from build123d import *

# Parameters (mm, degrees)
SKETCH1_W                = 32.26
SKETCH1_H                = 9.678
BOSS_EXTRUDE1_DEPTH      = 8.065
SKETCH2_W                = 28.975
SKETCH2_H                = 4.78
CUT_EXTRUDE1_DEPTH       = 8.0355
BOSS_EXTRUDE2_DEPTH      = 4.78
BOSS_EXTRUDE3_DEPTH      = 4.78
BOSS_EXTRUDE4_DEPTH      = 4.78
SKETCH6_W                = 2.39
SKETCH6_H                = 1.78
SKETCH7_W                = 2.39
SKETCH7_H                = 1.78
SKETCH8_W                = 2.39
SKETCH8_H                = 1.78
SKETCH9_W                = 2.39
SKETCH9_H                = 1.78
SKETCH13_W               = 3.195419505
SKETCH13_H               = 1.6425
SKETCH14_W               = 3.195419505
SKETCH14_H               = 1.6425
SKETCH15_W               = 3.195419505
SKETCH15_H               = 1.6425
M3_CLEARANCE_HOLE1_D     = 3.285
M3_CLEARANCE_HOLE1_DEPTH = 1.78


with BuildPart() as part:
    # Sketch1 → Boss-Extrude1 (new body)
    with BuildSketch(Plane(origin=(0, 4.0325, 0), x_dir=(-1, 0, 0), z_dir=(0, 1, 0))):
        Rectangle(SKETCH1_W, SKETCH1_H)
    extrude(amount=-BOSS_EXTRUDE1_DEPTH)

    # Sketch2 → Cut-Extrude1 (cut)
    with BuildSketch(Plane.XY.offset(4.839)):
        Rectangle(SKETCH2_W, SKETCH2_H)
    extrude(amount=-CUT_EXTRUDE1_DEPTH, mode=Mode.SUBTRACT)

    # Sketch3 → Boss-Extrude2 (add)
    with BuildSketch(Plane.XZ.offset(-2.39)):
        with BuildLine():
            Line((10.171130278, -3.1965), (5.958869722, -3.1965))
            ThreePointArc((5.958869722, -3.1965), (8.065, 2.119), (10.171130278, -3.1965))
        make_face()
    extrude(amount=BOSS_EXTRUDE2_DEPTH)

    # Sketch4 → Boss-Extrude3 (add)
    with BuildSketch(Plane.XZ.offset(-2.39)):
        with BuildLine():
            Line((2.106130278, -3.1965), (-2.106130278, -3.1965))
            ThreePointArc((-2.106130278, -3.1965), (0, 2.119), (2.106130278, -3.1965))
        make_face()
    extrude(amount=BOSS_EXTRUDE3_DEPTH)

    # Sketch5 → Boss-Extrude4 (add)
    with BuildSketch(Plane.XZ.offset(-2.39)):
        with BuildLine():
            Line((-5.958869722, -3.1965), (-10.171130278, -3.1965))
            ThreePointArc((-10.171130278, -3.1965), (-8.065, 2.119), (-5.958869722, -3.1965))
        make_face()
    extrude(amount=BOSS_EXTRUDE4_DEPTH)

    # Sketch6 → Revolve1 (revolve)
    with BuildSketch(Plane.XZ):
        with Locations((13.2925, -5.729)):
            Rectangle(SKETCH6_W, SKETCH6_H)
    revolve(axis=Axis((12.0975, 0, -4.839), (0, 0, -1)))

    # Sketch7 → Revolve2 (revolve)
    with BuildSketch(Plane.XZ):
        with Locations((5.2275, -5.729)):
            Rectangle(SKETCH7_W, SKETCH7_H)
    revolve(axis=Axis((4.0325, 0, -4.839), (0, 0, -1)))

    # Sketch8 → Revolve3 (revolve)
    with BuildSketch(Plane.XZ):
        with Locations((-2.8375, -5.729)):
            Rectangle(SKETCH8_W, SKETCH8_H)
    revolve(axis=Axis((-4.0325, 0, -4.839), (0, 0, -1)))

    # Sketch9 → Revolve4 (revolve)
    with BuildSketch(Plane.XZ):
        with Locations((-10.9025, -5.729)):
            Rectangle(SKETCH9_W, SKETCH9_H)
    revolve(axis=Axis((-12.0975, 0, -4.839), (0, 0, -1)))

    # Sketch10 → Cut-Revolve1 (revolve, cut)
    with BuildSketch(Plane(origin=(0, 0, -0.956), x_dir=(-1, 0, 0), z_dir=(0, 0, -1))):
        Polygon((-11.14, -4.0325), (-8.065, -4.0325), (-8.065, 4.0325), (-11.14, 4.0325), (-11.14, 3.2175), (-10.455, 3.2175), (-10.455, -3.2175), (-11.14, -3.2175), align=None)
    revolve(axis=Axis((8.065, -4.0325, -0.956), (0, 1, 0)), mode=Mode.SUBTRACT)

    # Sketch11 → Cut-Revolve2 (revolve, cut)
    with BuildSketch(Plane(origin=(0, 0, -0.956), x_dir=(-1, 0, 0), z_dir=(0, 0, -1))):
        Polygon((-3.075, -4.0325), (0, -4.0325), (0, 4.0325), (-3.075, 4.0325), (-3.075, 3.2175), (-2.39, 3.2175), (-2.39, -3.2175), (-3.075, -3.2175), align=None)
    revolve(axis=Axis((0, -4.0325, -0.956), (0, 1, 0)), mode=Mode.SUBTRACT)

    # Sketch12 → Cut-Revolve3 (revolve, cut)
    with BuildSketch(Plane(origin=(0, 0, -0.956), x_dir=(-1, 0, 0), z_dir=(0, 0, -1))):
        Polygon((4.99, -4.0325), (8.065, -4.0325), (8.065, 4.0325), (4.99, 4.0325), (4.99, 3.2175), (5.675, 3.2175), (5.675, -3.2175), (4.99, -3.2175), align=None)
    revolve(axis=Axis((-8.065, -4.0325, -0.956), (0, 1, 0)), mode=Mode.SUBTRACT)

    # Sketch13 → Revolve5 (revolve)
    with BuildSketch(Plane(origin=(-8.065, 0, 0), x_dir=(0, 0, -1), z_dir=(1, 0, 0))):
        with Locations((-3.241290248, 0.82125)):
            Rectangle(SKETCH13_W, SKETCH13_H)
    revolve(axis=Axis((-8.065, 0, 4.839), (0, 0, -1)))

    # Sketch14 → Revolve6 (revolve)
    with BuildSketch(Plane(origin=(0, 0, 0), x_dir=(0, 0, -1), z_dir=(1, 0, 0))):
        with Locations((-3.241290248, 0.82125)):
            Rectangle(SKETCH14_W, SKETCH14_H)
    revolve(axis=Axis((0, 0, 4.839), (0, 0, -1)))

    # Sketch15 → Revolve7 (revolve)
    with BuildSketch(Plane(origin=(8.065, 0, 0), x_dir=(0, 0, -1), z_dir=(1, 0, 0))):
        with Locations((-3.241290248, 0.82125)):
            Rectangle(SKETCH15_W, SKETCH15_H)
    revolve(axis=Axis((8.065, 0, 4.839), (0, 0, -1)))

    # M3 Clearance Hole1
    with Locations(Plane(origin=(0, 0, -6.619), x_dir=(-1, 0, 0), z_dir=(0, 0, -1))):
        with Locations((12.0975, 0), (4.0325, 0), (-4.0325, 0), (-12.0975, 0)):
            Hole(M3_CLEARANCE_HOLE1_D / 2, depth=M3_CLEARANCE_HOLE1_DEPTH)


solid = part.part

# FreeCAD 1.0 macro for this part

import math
import FreeCAD as App
import Part
import Sketcher

V = App.Vector
Q = App.Units.Quantity


def add_polygon(sketch, points):
    """Adds a closed chain of lines whose ends are joined by coincident constraints."""
    first, n = sketch.GeometryCount, len(points)
    for a, b in zip(points, points[1:] + points[:1]):
        sketch.addGeometry(Part.LineSegment(App.Vector(*a, 0), App.Vector(*b, 0)), False)
    for i in range(n):
        sketch.addConstraint(Sketcher.Constraint("Coincident", first + i, 2, first + (i + 1) % n, 1))

doc = App.newDocument("Part")
body = doc.addObject("PartDesign::Body", "Body")

# Sketch on XZ plane
sketch1 = body.newObject("Sketcher::SketchObject", "Sketch")
sketch1.AttachmentSupport = (doc.getObject("XZ_Plane"), [""])
sketch1.MapMode = "FlatFace"
sketch1.AttachmentOffset = App.Placement(V(0, 0, -4.0325), App.Rotation())
add_polygon(sketch1, [(16, 5), (16, -5), (-16, -5), (-16, 5)])  # lines 0-3
sketch1.addConstraint(Sketcher.Constraint("Vertical", 0))
sketch1.addConstraint(Sketcher.Constraint("Horizontal", 1))
sketch1.addConstraint(Sketcher.Constraint("Vertical", 2))
sketch1.addConstraint(Sketcher.Constraint("Horizontal", 3))
sketch1.addConstraint(Sketcher.Constraint("Symmetric", 0, 2, 2, 2, -1, 1))
sketch1.addConstraint(Sketcher.Constraint("DistanceX", 1, 2, 1, 1, Q("32.26 mm")))
sketch1.addConstraint(Sketcher.Constraint("DistanceY", 0, 2, 0, 1, Q("9.678 mm")))
pad1 = body.newObject("PartDesign::Pad", "Pad")
pad1.Profile = sketch1
pad1.Length = 8.065

# Sketch on XY plane
sketch2 = body.newObject("Sketcher::SketchObject", "Sketch001")
sketch2.AttachmentSupport = (doc.getObject("XY_Plane"), [""])
sketch2.MapMode = "FlatFace"
sketch2.AttachmentOffset = App.Placement(V(0, 0, 4.839), App.Rotation())
add_polygon(sketch2, [(-14.5, 2.4), (-14.5, -2.4), (14.5, -2.4), (14.5, 2.4)])  # lines 0-3
sketch2.addConstraint(Sketcher.Constraint("Vertical", 0))
sketch2.addConstraint(Sketcher.Constraint("Horizontal", 1))
sketch2.addConstraint(Sketcher.Constraint("Vertical", 2))
sketch2.addConstraint(Sketcher.Constraint("Horizontal", 3))
sketch2.addConstraint(Sketcher.Constraint("Symmetric", 0, 2, 2, 2, -1, 1))
sketch2.addConstraint(Sketcher.Constraint("DistanceY", 0, 2, 0, 1, Q("4.78 mm")))
sketch2.addConstraint(Sketcher.Constraint("DistanceX", 1, 1, 1, 2, Q("28.975 mm")))
pocket1 = body.newObject("PartDesign::Pocket", "Pocket")
pocket1.Profile = sketch2
pocket1.Length = 8.0355

# Sketch on XZ plane
sketch3 = body.newObject("Sketcher::SketchObject", "Sketch002")
sketch3.AttachmentSupport = (doc.getObject("XZ_Plane"), [""])
sketch3.MapMode = "FlatFace"
sketch3.AttachmentOffset = App.Placement(V(0, 0, -2.39), App.Rotation())
sketch3.addGeometry(Part.LineSegment(V(6, -3.2, 0), V(10.2, -3.2, 0)), False)
sketch3.addGeometry(Part.ArcOfCircle(Part.Circle(V(8.1, -1, 0), V(0, 0, 1), 3.1), math.radians(-47), math.radians(227)), False)
sketch3.addConstraint(Sketcher.Constraint("Coincident", 0, 1, 1, 2))
sketch3.addConstraint(Sketcher.Constraint("Coincident", 1, 1, 0, 2))
sketch3.addConstraint(Sketcher.Constraint("Horizontal", 0))
sketch3.addConstraint(Sketcher.Constraint("Radius", 1, Q("3.075 mm")))
sketch3.addConstraint(Sketcher.Constraint("DistanceX", -1, 1, 1, 3, Q("8.065 mm")))
sketch3.addConstraint(Sketcher.Constraint("DistanceY", 1, 3, -1, 1, Q("0.956 mm")))
sketch3.addConstraint(Sketcher.Constraint("DistanceX", 0, 1, 0, 2, Q("4.212261 mm")))
pad2 = body.newObject("PartDesign::Pad", "Pad001")
pad2.Profile = sketch3
pad2.Length = 4.78

# Sketch on XZ plane
sketch4 = body.newObject("Sketcher::SketchObject", "Sketch003")
sketch4.AttachmentSupport = (doc.getObject("XZ_Plane"), [""])
sketch4.MapMode = "FlatFace"
sketch4.AttachmentOffset = App.Placement(V(0, 0, -2.39), App.Rotation())
sketch4.addGeometry(Part.LineSegment(V(-2.1, -3.2, 0), V(2.1, -3.2, 0)), False)
sketch4.addGeometry(Part.ArcOfCircle(Part.Circle(V(0, -1, 0), V(0, 0, 1), 3.1), math.radians(-47), math.radians(227)), False)
sketch4.addConstraint(Sketcher.Constraint("Coincident", 0, 1, 1, 2))
sketch4.addConstraint(Sketcher.Constraint("Coincident", 1, 1, 0, 2))
sketch4.addConstraint(Sketcher.Constraint("Horizontal", 0))
sketch4.addConstraint(Sketcher.Constraint("PointOnObject", 1, 3, -2))
sketch4.addConstraint(Sketcher.Constraint("Radius", 1, Q("3.075 mm")))
sketch4.addConstraint(Sketcher.Constraint("DistanceY", 1, 3, -1, 1, Q("0.956 mm")))
sketch4.addConstraint(Sketcher.Constraint("DistanceX", 0, 1, 0, 2, Q("4.212261 mm")))
pad3 = body.newObject("PartDesign::Pad", "Pad002")
pad3.Profile = sketch4
pad3.Length = 4.78

# Sketch on XZ plane
sketch5 = body.newObject("Sketcher::SketchObject", "Sketch004")
sketch5.AttachmentSupport = (doc.getObject("XZ_Plane"), [""])
sketch5.MapMode = "FlatFace"
sketch5.AttachmentOffset = App.Placement(V(0, 0, -2.39), App.Rotation())
sketch5.addGeometry(Part.LineSegment(V(-10.2, -3.2, 0), V(-6, -3.2, 0)), False)
sketch5.addGeometry(Part.ArcOfCircle(Part.Circle(V(-8.1, -1, 0), V(0, 0, 1), 3.1), math.radians(-47), math.radians(227)), False)
sketch5.addConstraint(Sketcher.Constraint("Coincident", 0, 1, 1, 2))
sketch5.addConstraint(Sketcher.Constraint("Coincident", 1, 1, 0, 2))
sketch5.addConstraint(Sketcher.Constraint("Horizontal", 0))
sketch5.addConstraint(Sketcher.Constraint("Radius", 1, Q("3.075 mm")))
sketch5.addConstraint(Sketcher.Constraint("DistanceX", 1, 3, -1, 1, Q("8.065 mm")))
sketch5.addConstraint(Sketcher.Constraint("DistanceY", 1, 3, -1, 1, Q("0.956 mm")))
sketch5.addConstraint(Sketcher.Constraint("DistanceX", 0, 1, 0, 2, Q("4.212261 mm")))
pad4 = body.newObject("PartDesign::Pad", "Pad003")
pad4.Profile = sketch5
pad4.Length = 4.78

# Sketch on XZ plane
sketch6 = body.newObject("Sketcher::SketchObject", "Sketch005")
sketch6.AttachmentSupport = (doc.getObject("XZ_Plane"), [""])
sketch6.MapMode = "FlatFace"
add_polygon(sketch6, [(12.1, -4.8), (12.1, -6.6), (14.5, -6.6), (14.5, -4.8)])  # lines 0-3
sketch6.addGeometry(Part.LineSegment(V(12.1, -4.8, 0), V(12.1, -6.6, 0)), True)  # axis
sketch6.addConstraint(Sketcher.Constraint("Vertical", 0))
sketch6.addConstraint(Sketcher.Constraint("Horizontal", 1))
sketch6.addConstraint(Sketcher.Constraint("Vertical", 2))
sketch6.addConstraint(Sketcher.Constraint("Horizontal", 3))
sketch6.addConstraint(Sketcher.Constraint("Vertical", 4))
sketch6.addConstraint(Sketcher.Constraint("Coincident", 4, 1, 3, 2))
sketch6.addConstraint(Sketcher.Constraint("Horizontal", 1, 2, 4, 2))
sketch6.addConstraint(Sketcher.Constraint("DistanceX", 1, 1, 1, 2, Q("2.39 mm")))
sketch6.addConstraint(Sketcher.Constraint("DistanceY", 0, 2, 0, 1, Q("1.78 mm")))
sketch6.addConstraint(Sketcher.Constraint("DistanceY", 0, 2, -1, 1, Q("6.619 mm")))
sketch6.addConstraint(Sketcher.Constraint("DistanceX", -1, 1, 0, 2, Q("12.0975 mm")))
revolution = body.newObject("PartDesign::Revolution", "Revolution")
revolution.Profile = sketch6
revolution.ReferenceAxis = (sketch6, ["Axis0"])
revolution.Angle = 360

# Sketch on XZ plane
sketch7 = body.newObject("Sketcher::SketchObject", "Sketch006")
sketch7.AttachmentSupport = (doc.getObject("XZ_Plane"), [""])
sketch7.MapMode = "FlatFace"
add_polygon(sketch7, [(4, -4.8), (4, -6.6), (6.4, -6.6), (6.4, -4.8)])  # lines 0-3
sketch7.addGeometry(Part.LineSegment(V(4, -4.8, 0), V(4, -6.6, 0)), True)  # axis
sketch7.addConstraint(Sketcher.Constraint("Vertical", 0))
sketch7.addConstraint(Sketcher.Constraint("Horizontal", 1))
sketch7.addConstraint(Sketcher.Constraint("Vertical", 2))
sketch7.addConstraint(Sketcher.Constraint("Horizontal", 3))
sketch7.addConstraint(Sketcher.Constraint("Vertical", 4))
sketch7.addConstraint(Sketcher.Constraint("Coincident", 4, 1, 3, 2))
sketch7.addConstraint(Sketcher.Constraint("Horizontal", 1, 2, 4, 2))
sketch7.addConstraint(Sketcher.Constraint("DistanceX", 1, 1, 1, 2, Q("2.39 mm")))
sketch7.addConstraint(Sketcher.Constraint("DistanceY", 0, 2, 0, 1, Q("1.78 mm")))
sketch7.addConstraint(Sketcher.Constraint("DistanceY", 0, 2, -1, 1, Q("6.619 mm")))
sketch7.addConstraint(Sketcher.Constraint("DistanceX", -1, 1, 0, 2, Q("4.0325 mm")))
revolution2 = body.newObject("PartDesign::Revolution", "Revolution001")
revolution2.Profile = sketch7
revolution2.ReferenceAxis = (sketch7, ["Axis0"])
revolution2.Angle = 360

# Sketch on XZ plane
sketch8 = body.newObject("Sketcher::SketchObject", "Sketch007")
sketch8.AttachmentSupport = (doc.getObject("XZ_Plane"), [""])
sketch8.MapMode = "FlatFace"
add_polygon(sketch8, [(-4, -4.8), (-4, -6.6), (-1.6, -6.6), (-1.6, -4.8)])  # lines 0-3
sketch8.addGeometry(Part.LineSegment(V(-4, -4.8, 0), V(-4, -6.6, 0)), True)  # axis
sketch8.addConstraint(Sketcher.Constraint("Vertical", 0))
sketch8.addConstraint(Sketcher.Constraint("Horizontal", 1))
sketch8.addConstraint(Sketcher.Constraint("Vertical", 2))
sketch8.addConstraint(Sketcher.Constraint("Horizontal", 3))
sketch8.addConstraint(Sketcher.Constraint("Vertical", 4))
sketch8.addConstraint(Sketcher.Constraint("Coincident", 4, 1, 3, 2))
sketch8.addConstraint(Sketcher.Constraint("Horizontal", 1, 2, 4, 2))
sketch8.addConstraint(Sketcher.Constraint("DistanceX", 1, 1, 1, 2, Q("2.39 mm")))
sketch8.addConstraint(Sketcher.Constraint("DistanceY", 0, 2, 0, 1, Q("1.78 mm")))
sketch8.addConstraint(Sketcher.Constraint("DistanceY", 0, 2, -1, 1, Q("6.619 mm")))
sketch8.addConstraint(Sketcher.Constraint("DistanceX", 0, 2, -1, 1, Q("4.0325 mm")))
revolution3 = body.newObject("PartDesign::Revolution", "Revolution002")
revolution3.Profile = sketch8
revolution3.ReferenceAxis = (sketch8, ["Axis0"])
revolution3.Angle = 360

# Sketch on XZ plane
sketch9 = body.newObject("Sketcher::SketchObject", "Sketch008")
sketch9.AttachmentSupport = (doc.getObject("XZ_Plane"), [""])
sketch9.MapMode = "FlatFace"
add_polygon(sketch9, [(-12.1, -4.8), (-12.1, -6.6), (-9.7, -6.6), (-9.7, -4.8)])  # lines 0-3
sketch9.addGeometry(Part.LineSegment(V(-12.1, -4.8, 0), V(-12.1, -6.6, 0)), True)  # axis
sketch9.addConstraint(Sketcher.Constraint("Vertical", 0))
sketch9.addConstraint(Sketcher.Constraint("Horizontal", 1))
sketch9.addConstraint(Sketcher.Constraint("Vertical", 2))
sketch9.addConstraint(Sketcher.Constraint("Horizontal", 3))
sketch9.addConstraint(Sketcher.Constraint("Vertical", 4))
sketch9.addConstraint(Sketcher.Constraint("Coincident", 4, 1, 3, 2))
sketch9.addConstraint(Sketcher.Constraint("Horizontal", 1, 2, 4, 2))
sketch9.addConstraint(Sketcher.Constraint("DistanceX", 1, 1, 1, 2, Q("2.39 mm")))
sketch9.addConstraint(Sketcher.Constraint("DistanceY", 0, 2, 0, 1, Q("1.78 mm")))
sketch9.addConstraint(Sketcher.Constraint("DistanceY", 0, 2, -1, 1, Q("6.619 mm")))
sketch9.addConstraint(Sketcher.Constraint("DistanceX", 0, 2, -1, 1, Q("12.0975 mm")))
revolution4 = body.newObject("PartDesign::Revolution", "Revolution003")
revolution4.Profile = sketch9
revolution4.ReferenceAxis = (sketch9, ["Axis0"])
revolution4.Angle = 360

# Sketch on XY plane
sketch10 = body.newObject("Sketcher::SketchObject", "Sketch009")
sketch10.AttachmentSupport = (doc.getObject("XY_Plane"), [""])
sketch10.MapMode = "FlatFace"
sketch10.AttachmentOffset = App.Placement(V(0, 0, -0.956), App.Rotation())
add_polygon(sketch10, [(11.1, -4), (8.1, -4), (8.1, 4), (11.1, 4), (11.1, 3.2), (10.5, 3.2), (10.5, -3.2), (11.1, -3.2)])  # lines 0-7
sketch10.addGeometry(Part.LineSegment(V(8.1, -4, 0), V(8.1, 4, 0)), True)  # axis
sketch10.addConstraint(Sketcher.Constraint("Horizontal", 0))
sketch10.addConstraint(Sketcher.Constraint("Vertical", 1))
sketch10.addConstraint(Sketcher.Constraint("Horizontal", 2))
sketch10.addConstraint(Sketcher.Constraint("Vertical", 3))
sketch10.addConstraint(Sketcher.Constraint("Horizontal", 4))
sketch10.addConstraint(Sketcher.Constraint("Vertical", 5))
sketch10.addConstraint(Sketcher.Constraint("Horizontal", 6))
sketch10.addConstraint(Sketcher.Constraint("Vertical", 7))
sketch10.addConstraint(Sketcher.Constraint("Vertical", 8))
sketch10.addConstraint(Sketcher.Constraint("Coincident", 8, 1, 0, 2))
sketch10.addConstraint(Sketcher.Constraint("Symmetric", 3, 2, 6, 2, -1))
sketch10.addConstraint(Sketcher.Constraint("Horizontal", 2, 2, 8, 2))
sketch10.addConstraint(Sketcher.Constraint("Equal", 3, 7))
sketch10.addConstraint(Sketcher.Constraint("DistanceX", 0, 2, 0, 1, Q("3.075 mm")))
sketch10.addConstraint(Sketcher.Constraint("DistanceX", 4, 2, 4, 1, Q("0.685 mm")))
sketch10.addConstraint(Sketcher.Constraint("DistanceY", 1, 1, 1, 2, Q("8.065 mm")))
sketch10.addConstraint(Sketcher.Constraint("DistanceY", 3, 2, 3, 1, Q("0.815 mm")))
sketch10.addConstraint(Sketcher.Constraint("DistanceX", -1, 1, 2, 2, Q("11.14 mm")))
groove = body.newObject("PartDesign::Groove", "Groove")
groove.Profile = sketch10
groove.ReferenceAxis = (sketch10, ["Axis0"])
groove.Angle = 360

# Sketch on XY plane
sketch11 = body.newObject("Sketcher::SketchObject", "Sketch010")
sketch11.AttachmentSupport = (doc.getObject("XY_Plane"), [""])
sketch11.MapMode = "FlatFace"
sketch11.AttachmentOffset = App.Placement(V(0, 0, -0.956), App.Rotation())
add_polygon(sketch11, [(3.1, -4), (0, -4), (0, 4), (3.1, 4), (3.1, 3.2), (2.4, 3.2), (2.4, -3.2), (3.1, -3.2)])  # lines 0-7
sketch11.addConstraint(Sketcher.Constraint("Horizontal", 0))
sketch11.addConstraint(Sketcher.Constraint("Vertical", 1))
sketch11.addConstraint(Sketcher.Constraint("Horizontal", 2))
sketch11.addConstraint(Sketcher.Constraint("Vertical", 3))
sketch11.addConstraint(Sketcher.Constraint("Horizontal", 4))
sketch11.addConstraint(Sketcher.Constraint("Vertical", 5))
sketch11.addConstraint(Sketcher.Constraint("Horizontal", 6))
sketch11.addConstraint(Sketcher.Constraint("Vertical", 7))
sketch11.addConstraint(Sketcher.Constraint("Symmetric", 0, 2, 1, 2, -1, 1))
sketch11.addConstraint(Sketcher.Constraint("Symmetric", 3, 2, 6, 2, -1))
sketch11.addConstraint(Sketcher.Constraint("DistanceX", 0, 2, 0, 1, Q("3.075 mm")))
sketch11.addConstraint(Sketcher.Constraint("DistanceX", 4, 2, 4, 1, Q("0.685 mm")))
sketch11.addConstraint(Sketcher.Constraint("DistanceY", 1, 1, 1, 2, Q("8.065 mm")))
sketch11.addConstraint(Sketcher.Constraint("DistanceY", 3, 2, 3, 1, Q("0.815 mm")))
groove2 = body.newObject("PartDesign::Groove", "Groove001")
groove2.Profile = sketch11
groove2.ReferenceAxis = (sketch11, ["V_Axis"])
groove2.Angle = 360

# Sketch on XY plane
sketch12 = body.newObject("Sketcher::SketchObject", "Sketch011")
sketch12.AttachmentSupport = (doc.getObject("XY_Plane"), [""])
sketch12.MapMode = "FlatFace"
sketch12.AttachmentOffset = App.Placement(V(0, 0, -0.956), App.Rotation())
add_polygon(sketch12, [(-5, -4), (-8.1, -4), (-8.1, 4), (-5, 4), (-5, 3.2), (-5.7, 3.2), (-5.7, -3.2), (-5, -3.2)])  # lines 0-7
sketch12.addGeometry(Part.LineSegment(V(-8.1, -4, 0), V(-8.1, 4, 0)), True)  # axis
sketch12.addConstraint(Sketcher.Constraint("Horizontal", 0))
sketch12.addConstraint(Sketcher.Constraint("Vertical", 1))
sketch12.addConstraint(Sketcher.Constraint("Horizontal", 2))
sketch12.addConstraint(Sketcher.Constraint("Vertical", 3))
sketch12.addConstraint(Sketcher.Constraint("Horizontal", 4))
sketch12.addConstraint(Sketcher.Constraint("Vertical", 5))
sketch12.addConstraint(Sketcher.Constraint("Horizontal", 6))
sketch12.addConstraint(Sketcher.Constraint("Vertical", 7))
sketch12.addConstraint(Sketcher.Constraint("Vertical", 8))
sketch12.addConstraint(Sketcher.Constraint("Coincident", 8, 1, 0, 2))
sketch12.addConstraint(Sketcher.Constraint("Symmetric", 3, 2, 6, 2, -1))
sketch12.addConstraint(Sketcher.Constraint("Horizontal", 2, 2, 8, 2))
sketch12.addConstraint(Sketcher.Constraint("Equal", 3, 7))
sketch12.addConstraint(Sketcher.Constraint("DistanceX", 0, 2, 0, 1, Q("3.075 mm")))
sketch12.addConstraint(Sketcher.Constraint("DistanceX", 4, 2, 4, 1, Q("0.685 mm")))
sketch12.addConstraint(Sketcher.Constraint("DistanceY", 1, 1, 1, 2, Q("8.065 mm")))
sketch12.addConstraint(Sketcher.Constraint("DistanceY", 3, 2, 3, 1, Q("0.815 mm")))
sketch12.addConstraint(Sketcher.Constraint("DistanceX", 2, 2, -1, 1, Q("4.99 mm")))
groove3 = body.newObject("PartDesign::Groove", "Groove002")
groove3.Profile = sketch12
groove3.ReferenceAxis = (sketch12, ["Axis0"])
groove3.Angle = 360

# Sketch on YZ plane
sketch13 = body.newObject("Sketcher::SketchObject", "Sketch012")
sketch13.AttachmentSupport = (doc.getObject("YZ_Plane"), [""])
sketch13.MapMode = "FlatFace"
sketch13.AttachmentOffset = App.Placement(V(0, 0, -8.065), App.Rotation())
add_polygon(sketch13, [(1.6, 4.8), (0, 4.8), (0, 1.6), (1.6, 1.6)])  # lines 0-3
sketch13.addConstraint(Sketcher.Constraint("Horizontal", 0))
sketch13.addConstraint(Sketcher.Constraint("Vertical", 1))
sketch13.addConstraint(Sketcher.Constraint("Horizontal", 2))
sketch13.addConstraint(Sketcher.Constraint("Vertical", 3))
sketch13.addConstraint(Sketcher.Constraint("PointOnObject", 0, 2, -2))
sketch13.addConstraint(Sketcher.Constraint("DistanceX", 0, 2, 0, 1, Q("1.6425 mm")))
sketch13.addConstraint(Sketcher.Constraint("DistanceY", -1, 1, 0, 2, Q("4.839 mm")))
sketch13.addConstraint(Sketcher.Constraint("DistanceY", 1, 2, 1, 1, Q("3.19542 mm")))
revolution5 = body.newObject("PartDesign::Revolution", "Revolution004")
revolution5.Profile = sketch13
revolution5.ReferenceAxis = (sketch13, ["V_Axis"])
revolution5.Angle = 360

# Sketch on YZ plane
sketch14 = body.newObject("Sketcher::SketchObject", "Sketch013")
sketch14.AttachmentSupport = (doc.getObject("YZ_Plane"), [""])
sketch14.MapMode = "FlatFace"
add_polygon(sketch14, [(1.6, 4.8), (0, 4.8), (0, 1.6), (1.6, 1.6)])  # lines 0-3
sketch14.addConstraint(Sketcher.Constraint("Horizontal", 0))
sketch14.addConstraint(Sketcher.Constraint("Vertical", 1))
sketch14.addConstraint(Sketcher.Constraint("Horizontal", 2))
sketch14.addConstraint(Sketcher.Constraint("Vertical", 3))
sketch14.addConstraint(Sketcher.Constraint("PointOnObject", 0, 2, -2))
sketch14.addConstraint(Sketcher.Constraint("DistanceX", 0, 2, 0, 1, Q("1.6425 mm")))
sketch14.addConstraint(Sketcher.Constraint("DistanceY", -1, 1, 0, 2, Q("4.839 mm")))
sketch14.addConstraint(Sketcher.Constraint("DistanceY", 1, 2, 1, 1, Q("3.19542 mm")))
revolution6 = body.newObject("PartDesign::Revolution", "Revolution005")
revolution6.Profile = sketch14
revolution6.ReferenceAxis = (sketch14, ["V_Axis"])
revolution6.Angle = 360

# Sketch on YZ plane
sketch15 = body.newObject("Sketcher::SketchObject", "Sketch014")
sketch15.AttachmentSupport = (doc.getObject("YZ_Plane"), [""])
sketch15.MapMode = "FlatFace"
sketch15.AttachmentOffset = App.Placement(V(0, 0, 8.065), App.Rotation())
add_polygon(sketch15, [(1.6, 4.8), (0, 4.8), (0, 1.6), (1.6, 1.6)])  # lines 0-3
sketch15.addConstraint(Sketcher.Constraint("Horizontal", 0))
sketch15.addConstraint(Sketcher.Constraint("Vertical", 1))
sketch15.addConstraint(Sketcher.Constraint("Horizontal", 2))
sketch15.addConstraint(Sketcher.Constraint("Vertical", 3))
sketch15.addConstraint(Sketcher.Constraint("PointOnObject", 0, 2, -2))
sketch15.addConstraint(Sketcher.Constraint("DistanceX", 0, 2, 0, 1, Q("1.6425 mm")))
sketch15.addConstraint(Sketcher.Constraint("DistanceY", -1, 1, 0, 2, Q("4.839 mm")))
sketch15.addConstraint(Sketcher.Constraint("DistanceY", 1, 2, 1, 1, Q("3.19542 mm")))
revolution7 = body.newObject("PartDesign::Revolution", "Revolution006")
revolution7.Profile = sketch15
revolution7.ReferenceAxis = (sketch15, ["V_Axis"])
revolution7.Angle = 360

# Sketch on XY plane
sketch16 = body.newObject("Sketcher::SketchObject", "Sketch015")
sketch16.AttachmentSupport = (doc.getObject("XY_Plane"), [""])
sketch16.MapMode = "FlatFace"
sketch16.AttachmentOffset = App.Placement(V(0, 0, -6.619), App.Rotation())
sketch16.addGeometry(Part.Circle(V(-12.1, 0, 0), V(0, 0, 1), 1.6), False)
sketch16.addGeometry(Part.Circle(V(-4, 0, 0), V(0, 0, 1), 1.6), False)
sketch16.addGeometry(Part.Circle(V(4, 0, 0), V(0, 0, 1), 1.6), False)
sketch16.addGeometry(Part.Circle(V(12.1, 0, 0), V(0, 0, 1), 1.6), False)
sketch16.addConstraint(Sketcher.Constraint("Equal", 0, 1))
sketch16.addConstraint(Sketcher.Constraint("Equal", 1, 2))
sketch16.addConstraint(Sketcher.Constraint("Equal", 2, 3))
sketch16.addConstraint(Sketcher.Constraint("Symmetric", 1, 3, 2, 3, -1, 1))
sketch16.addConstraint(Sketcher.Constraint("Symmetric", 0, 3, 3, 3, -1, 1))
sketch16.addConstraint(Sketcher.Constraint("PointOnObject", 0, 3, -1))
sketch16.addConstraint(Sketcher.Constraint("PointOnObject", 1, 3, -1))
sketch16.addConstraint(Sketcher.Constraint("Diameter", 0, Q("3.285 mm")))
sketch16.addConstraint(Sketcher.Constraint("DistanceX", 0, 3, 2, 3, Q("16.13 mm")))
sketch16.addConstraint(Sketcher.Constraint("DistanceX", 0, 3, 1, 3, Q("8.065 mm")))
doc.recompute()
hole = body.newObject("PartDesign::Hole", "Hole")
hole.Profile = sketch16
hole.ThreadType = "None"
hole.Diameter = 3.285
hole.DepthType = "Dimension"
hole.Depth = 1.78
hole.DrillPoint = "Flat"
hole.Reversed = True

doc.recompute()
